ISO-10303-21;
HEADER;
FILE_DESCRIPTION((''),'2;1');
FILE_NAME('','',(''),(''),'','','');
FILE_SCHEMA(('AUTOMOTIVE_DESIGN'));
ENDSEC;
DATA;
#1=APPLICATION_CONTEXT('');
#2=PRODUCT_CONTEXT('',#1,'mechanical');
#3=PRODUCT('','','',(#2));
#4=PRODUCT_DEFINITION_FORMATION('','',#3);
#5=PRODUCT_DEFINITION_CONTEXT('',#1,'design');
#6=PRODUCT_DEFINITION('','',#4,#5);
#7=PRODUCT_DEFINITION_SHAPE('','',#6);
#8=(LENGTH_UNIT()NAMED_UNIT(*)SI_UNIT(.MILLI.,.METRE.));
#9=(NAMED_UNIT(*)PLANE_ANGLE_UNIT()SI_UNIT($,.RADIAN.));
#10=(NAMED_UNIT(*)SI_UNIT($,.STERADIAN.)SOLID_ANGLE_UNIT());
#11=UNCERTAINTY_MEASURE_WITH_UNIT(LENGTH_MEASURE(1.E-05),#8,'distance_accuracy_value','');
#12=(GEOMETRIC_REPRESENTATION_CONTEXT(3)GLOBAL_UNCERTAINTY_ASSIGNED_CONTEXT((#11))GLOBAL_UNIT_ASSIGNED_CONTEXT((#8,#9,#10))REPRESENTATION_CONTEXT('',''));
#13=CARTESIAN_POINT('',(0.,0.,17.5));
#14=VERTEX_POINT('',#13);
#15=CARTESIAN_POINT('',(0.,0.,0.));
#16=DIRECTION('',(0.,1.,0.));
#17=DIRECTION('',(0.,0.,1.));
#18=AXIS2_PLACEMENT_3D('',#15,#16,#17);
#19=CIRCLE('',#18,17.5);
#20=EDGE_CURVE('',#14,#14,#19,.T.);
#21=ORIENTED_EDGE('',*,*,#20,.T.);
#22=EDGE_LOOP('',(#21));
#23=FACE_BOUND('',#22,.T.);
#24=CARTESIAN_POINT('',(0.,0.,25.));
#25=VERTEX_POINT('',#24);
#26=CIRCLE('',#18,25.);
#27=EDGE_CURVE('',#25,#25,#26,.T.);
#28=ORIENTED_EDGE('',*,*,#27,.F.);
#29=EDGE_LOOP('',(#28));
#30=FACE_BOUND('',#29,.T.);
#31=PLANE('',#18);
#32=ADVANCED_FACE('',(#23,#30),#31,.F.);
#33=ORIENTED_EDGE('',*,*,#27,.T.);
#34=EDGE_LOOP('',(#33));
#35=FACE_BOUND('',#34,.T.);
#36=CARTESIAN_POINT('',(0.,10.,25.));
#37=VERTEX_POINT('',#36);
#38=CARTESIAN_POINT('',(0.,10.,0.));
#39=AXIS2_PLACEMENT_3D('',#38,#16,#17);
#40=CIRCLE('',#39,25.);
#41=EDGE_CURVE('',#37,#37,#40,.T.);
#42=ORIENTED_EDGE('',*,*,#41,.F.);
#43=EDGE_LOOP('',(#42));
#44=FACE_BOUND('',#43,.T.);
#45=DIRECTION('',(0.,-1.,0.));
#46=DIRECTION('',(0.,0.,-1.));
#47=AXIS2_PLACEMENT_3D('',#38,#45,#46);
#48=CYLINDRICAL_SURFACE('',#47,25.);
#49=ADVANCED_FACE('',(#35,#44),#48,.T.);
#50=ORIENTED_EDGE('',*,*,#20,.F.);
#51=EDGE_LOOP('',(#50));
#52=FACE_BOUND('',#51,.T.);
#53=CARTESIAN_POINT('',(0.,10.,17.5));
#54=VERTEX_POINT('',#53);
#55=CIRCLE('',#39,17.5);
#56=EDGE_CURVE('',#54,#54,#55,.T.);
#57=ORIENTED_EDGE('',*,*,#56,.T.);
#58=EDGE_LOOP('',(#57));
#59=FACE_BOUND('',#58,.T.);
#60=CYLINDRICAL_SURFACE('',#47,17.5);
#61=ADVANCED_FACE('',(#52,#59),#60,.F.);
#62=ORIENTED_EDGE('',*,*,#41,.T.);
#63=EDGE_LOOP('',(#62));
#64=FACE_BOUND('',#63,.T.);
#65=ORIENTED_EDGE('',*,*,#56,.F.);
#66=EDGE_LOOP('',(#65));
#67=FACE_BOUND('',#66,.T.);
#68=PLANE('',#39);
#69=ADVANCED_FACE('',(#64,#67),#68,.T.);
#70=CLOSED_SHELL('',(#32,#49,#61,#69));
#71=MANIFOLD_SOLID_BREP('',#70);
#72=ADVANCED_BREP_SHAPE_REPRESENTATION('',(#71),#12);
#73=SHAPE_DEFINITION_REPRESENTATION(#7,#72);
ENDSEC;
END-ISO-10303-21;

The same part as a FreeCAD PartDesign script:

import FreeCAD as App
import Part
import Sketcher

doc = App.newDocument("Part")
body = doc.addObject("PartDesign::Body", "Body")

sketch1 = body.newObject("Sketcher::SketchObject", "Sketch")
sketch1.AttachmentSupport = (doc.getObject("XZ_Plane"), [""])
sketch1.MapMode = "FlatFace"
sketch1.addGeometry([
    Part.Circle(App.Vector(0, 0, 0), App.Vector(0, 0, 1), 25),
    Part.Circle(App.Vector(0, 0, 0), App.Vector(0, 0, 1), 18),
], False)
sketch1.addConstraint([
    Sketcher.Constraint("Coincident", 0, 3, -1, 1),
    Sketcher.Constraint("Coincident", 1, 3, -1, 1),
    Sketcher.Constraint("Diameter", 0, 50.0),
    Sketcher.Constraint("Diameter", 1, 35.0),
])
pad1 = body.newObject("PartDesign::Pad", "Pad")
pad1.Profile = sketch1
pad1.Length = 10
pad1.Reversed = True

doc.recompute()
